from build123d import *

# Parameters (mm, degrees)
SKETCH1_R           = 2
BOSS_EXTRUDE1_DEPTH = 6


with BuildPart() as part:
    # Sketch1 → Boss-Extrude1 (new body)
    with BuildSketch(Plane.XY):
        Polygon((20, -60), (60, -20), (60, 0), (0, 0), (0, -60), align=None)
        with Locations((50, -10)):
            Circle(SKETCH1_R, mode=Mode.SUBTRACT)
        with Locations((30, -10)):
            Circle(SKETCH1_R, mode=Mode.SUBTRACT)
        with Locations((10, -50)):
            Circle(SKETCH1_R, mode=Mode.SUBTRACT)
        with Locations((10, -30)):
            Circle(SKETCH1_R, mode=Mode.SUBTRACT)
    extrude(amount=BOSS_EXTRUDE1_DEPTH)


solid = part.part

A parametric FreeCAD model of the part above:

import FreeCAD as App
import Part
import Sketcher
Q = App.Units.Quantity

doc = App.newDocument("Part")
body = doc.addObject("PartDesign::Body", "Body")

# Sketch on XY plane
sketch1 = body.newObject("Sketcher::SketchObject", "Sketch")
sketch1.AttachmentSupport = (doc.getObject("XY_Plane"), [""])
sketch1.MapMode = "FlatFace"
sketch1.addGeometry([
    Part.LineSegment(App.Vector(20, -60, 0), App.Vector(60, -20, 0)),  # 0
    Part.LineSegment(App.Vector(60, -20, 0), App.Vector(60, 0, 0)),  # 1
    Part.LineSegment(App.Vector(60, 0, 0), App.Vector(0, 0, 0)),  # 2
    Part.LineSegment(App.Vector(0, 0, 0), App.Vector(0, -60, 0)),  # 3
    Part.LineSegment(App.Vector(0, -60, 0), App.Vector(20, -60, 0)),  # 4
    Part.Circle(App.Vector(10, -50, 0), App.Vector(0, 0, 1), 2),  # 5
    Part.Circle(App.Vector(10, -30, 0), App.Vector(0, 0, 1), 2),  # 6
    Part.Circle(App.Vector(30, -10, 0), App.Vector(0, 0, 1), 2),  # 7
    Part.Circle(App.Vector(50, -10, 0), App.Vector(0, 0, 1), 2),  # 8
], False)
sketch1.addConstraint([
    Sketcher.Constraint("Coincident", 0, 2, 1, 1),
    Sketcher.Constraint("Coincident", 1, 2, 2, 1),
    Sketcher.Constraint("Coincident", 2, 2, 3, 1),
    Sketcher.Constraint("Coincident", 3, 2, 4, 1),
    Sketcher.Constraint("Coincident", 4, 2, 0, 1),
    Sketcher.Constraint("Vertical", 1),
    Sketcher.Constraint("Horizontal", 2),
    Sketcher.Constraint("Vertical", 3),
    Sketcher.Constraint("Horizontal", 4),
    Sketcher.Constraint("Coincident", 2, 2, -1, 1),
    Sketcher.Constraint("Equal", 5, 6),
    Sketcher.Constraint("Equal", 6, 7),
    Sketcher.Constraint("Equal", 7, 8),
    Sketcher.Constraint("Horizontal", 7, 3, 8, 3),
    Sketcher.Constraint("Vertical", 5, 3, 6, 3),
    Sketcher.Constraint("Equal", 4, 1),
    Sketcher.Constraint("Equal", 2, 3),
    Sketcher.Constraint("Diameter", 5, Q("4 mm")),
    Sketcher.Constraint("DistanceX", 2, 2, 2, 1, Q("60 mm")),
    Sketcher.Constraint("DistanceX", 4, 1, 4, 2, Q("20 mm")),
    Sketcher.Constraint("DistanceX", -1, 1, 5, 3, Q("10 mm")),
    Sketcher.Constraint("DistanceY", 5, 3, -1, 1, Q("50 mm")),
    Sketcher.Constraint("DistanceY", 6, 3, -1, 1, Q("30 mm")),
    Sketcher.Constraint("DistanceX", -1, 1, 7, 3, Q("30 mm")),
    Sketcher.Constraint("DistanceY", 7, 3, -1, 1, Q("10 mm")),
    Sketcher.Constraint("DistanceX", -1, 1, 8, 3, Q("50 mm")),
])
pad1 = body.newObject("PartDesign::Pad", "Pad")
pad1.Profile = sketch1
pad1.Length = 6

doc.recompute()
